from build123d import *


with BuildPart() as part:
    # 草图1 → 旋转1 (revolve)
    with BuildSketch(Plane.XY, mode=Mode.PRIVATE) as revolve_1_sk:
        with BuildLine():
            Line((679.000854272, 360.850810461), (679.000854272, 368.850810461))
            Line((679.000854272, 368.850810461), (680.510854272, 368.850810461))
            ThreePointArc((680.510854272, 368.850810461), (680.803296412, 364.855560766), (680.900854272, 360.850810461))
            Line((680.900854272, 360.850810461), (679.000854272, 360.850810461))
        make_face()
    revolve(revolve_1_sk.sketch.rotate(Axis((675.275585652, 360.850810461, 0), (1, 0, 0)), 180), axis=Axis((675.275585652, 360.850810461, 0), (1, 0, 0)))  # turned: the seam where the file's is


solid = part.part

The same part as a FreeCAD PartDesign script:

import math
import FreeCAD as App
import Part
import Sketcher
from FreeCAD import Vector

doc = App.newDocument("Part")
body = doc.addObject("PartDesign::Body", "Body")

# Sketch on XY plane
sketch1 = body.newObject("Sketcher::SketchObject", "Sketch")
sketch1.AttachmentSupport = (doc.getObject("XY_Plane"), [""])
sketch1.MapMode = "FlatFace"
sketch1.addGeometry(Part.LineSegment(Vector(679, 368.9, 0), Vector(679, 360.9, 0)), False)
sketch1.addGeometry(Part.LineSegment(Vector(679, 360.9, 0), Vector(680.9, 360.9, 0)), False)
sketch1.addGeometry(Part.ArcOfCircle(Part.Circle(Vector(598.7, 360.9, 0), Vector(0, 0, 1), 82.2), math.radians(0), math.radians(5.58)), False)
sketch1.addGeometry(Part.LineSegment(Vector(680.5, 368.9, 0), Vector(679, 368.9, 0)), False)
sketch1.addGeometry(Part.LineSegment(Vector(598.7, 360.9, 0), Vector(680.9, 360.9, 0)), True)  # axis
sketch1.addConstraint(Sketcher.Constraint("Coincident", 0, 2, 1, 1))
sketch1.addConstraint(Sketcher.Constraint("Coincident", 1, 2, 2, 1))
sketch1.addConstraint(Sketcher.Constraint("Coincident", 2, 2, 3, 1))
sketch1.addConstraint(Sketcher.Constraint("Coincident", 3, 2, 0, 1))
sketch1.addConstraint(Sketcher.Constraint("Vertical", 0))
sketch1.addConstraint(Sketcher.Constraint("Horizontal", 1))
sketch1.addConstraint(Sketcher.Constraint("Horizontal", 3))
sketch1.addConstraint(Sketcher.Constraint("Horizontal", 4))
sketch1.addConstraint(Sketcher.Constraint("Coincident", 4, 1, 2, 3))
sketch1.addConstraint(Sketcher.Constraint("Coincident", 4, 2, 1, 2))
sketch1.addConstraint(Sketcher.Constraint("DistanceY", 0, 2, 0, 1, 8.0))
sketch1.addConstraint(Sketcher.Constraint("DistanceX", 1, 1, 1, 2, 1.9))
sketch1.addConstraint(Sketcher.Constraint("DistanceX", 3, 2, 3, 1, 1.51))
sketch1.addConstraint(Sketcher.Constraint("DistanceY", -1, 1, 2, 3, 360.85081))
sketch1.addConstraint(Sketcher.Constraint("DistanceX", -1, 1, 2, 3, 598.654572))
revolution = body.newObject("PartDesign::Revolution", "Revolution")
revolution.Profile = sketch1
revolution.ReferenceAxis = (sketch1, ["Axis0"])
revolution.Angle = 360

doc.recompute()
